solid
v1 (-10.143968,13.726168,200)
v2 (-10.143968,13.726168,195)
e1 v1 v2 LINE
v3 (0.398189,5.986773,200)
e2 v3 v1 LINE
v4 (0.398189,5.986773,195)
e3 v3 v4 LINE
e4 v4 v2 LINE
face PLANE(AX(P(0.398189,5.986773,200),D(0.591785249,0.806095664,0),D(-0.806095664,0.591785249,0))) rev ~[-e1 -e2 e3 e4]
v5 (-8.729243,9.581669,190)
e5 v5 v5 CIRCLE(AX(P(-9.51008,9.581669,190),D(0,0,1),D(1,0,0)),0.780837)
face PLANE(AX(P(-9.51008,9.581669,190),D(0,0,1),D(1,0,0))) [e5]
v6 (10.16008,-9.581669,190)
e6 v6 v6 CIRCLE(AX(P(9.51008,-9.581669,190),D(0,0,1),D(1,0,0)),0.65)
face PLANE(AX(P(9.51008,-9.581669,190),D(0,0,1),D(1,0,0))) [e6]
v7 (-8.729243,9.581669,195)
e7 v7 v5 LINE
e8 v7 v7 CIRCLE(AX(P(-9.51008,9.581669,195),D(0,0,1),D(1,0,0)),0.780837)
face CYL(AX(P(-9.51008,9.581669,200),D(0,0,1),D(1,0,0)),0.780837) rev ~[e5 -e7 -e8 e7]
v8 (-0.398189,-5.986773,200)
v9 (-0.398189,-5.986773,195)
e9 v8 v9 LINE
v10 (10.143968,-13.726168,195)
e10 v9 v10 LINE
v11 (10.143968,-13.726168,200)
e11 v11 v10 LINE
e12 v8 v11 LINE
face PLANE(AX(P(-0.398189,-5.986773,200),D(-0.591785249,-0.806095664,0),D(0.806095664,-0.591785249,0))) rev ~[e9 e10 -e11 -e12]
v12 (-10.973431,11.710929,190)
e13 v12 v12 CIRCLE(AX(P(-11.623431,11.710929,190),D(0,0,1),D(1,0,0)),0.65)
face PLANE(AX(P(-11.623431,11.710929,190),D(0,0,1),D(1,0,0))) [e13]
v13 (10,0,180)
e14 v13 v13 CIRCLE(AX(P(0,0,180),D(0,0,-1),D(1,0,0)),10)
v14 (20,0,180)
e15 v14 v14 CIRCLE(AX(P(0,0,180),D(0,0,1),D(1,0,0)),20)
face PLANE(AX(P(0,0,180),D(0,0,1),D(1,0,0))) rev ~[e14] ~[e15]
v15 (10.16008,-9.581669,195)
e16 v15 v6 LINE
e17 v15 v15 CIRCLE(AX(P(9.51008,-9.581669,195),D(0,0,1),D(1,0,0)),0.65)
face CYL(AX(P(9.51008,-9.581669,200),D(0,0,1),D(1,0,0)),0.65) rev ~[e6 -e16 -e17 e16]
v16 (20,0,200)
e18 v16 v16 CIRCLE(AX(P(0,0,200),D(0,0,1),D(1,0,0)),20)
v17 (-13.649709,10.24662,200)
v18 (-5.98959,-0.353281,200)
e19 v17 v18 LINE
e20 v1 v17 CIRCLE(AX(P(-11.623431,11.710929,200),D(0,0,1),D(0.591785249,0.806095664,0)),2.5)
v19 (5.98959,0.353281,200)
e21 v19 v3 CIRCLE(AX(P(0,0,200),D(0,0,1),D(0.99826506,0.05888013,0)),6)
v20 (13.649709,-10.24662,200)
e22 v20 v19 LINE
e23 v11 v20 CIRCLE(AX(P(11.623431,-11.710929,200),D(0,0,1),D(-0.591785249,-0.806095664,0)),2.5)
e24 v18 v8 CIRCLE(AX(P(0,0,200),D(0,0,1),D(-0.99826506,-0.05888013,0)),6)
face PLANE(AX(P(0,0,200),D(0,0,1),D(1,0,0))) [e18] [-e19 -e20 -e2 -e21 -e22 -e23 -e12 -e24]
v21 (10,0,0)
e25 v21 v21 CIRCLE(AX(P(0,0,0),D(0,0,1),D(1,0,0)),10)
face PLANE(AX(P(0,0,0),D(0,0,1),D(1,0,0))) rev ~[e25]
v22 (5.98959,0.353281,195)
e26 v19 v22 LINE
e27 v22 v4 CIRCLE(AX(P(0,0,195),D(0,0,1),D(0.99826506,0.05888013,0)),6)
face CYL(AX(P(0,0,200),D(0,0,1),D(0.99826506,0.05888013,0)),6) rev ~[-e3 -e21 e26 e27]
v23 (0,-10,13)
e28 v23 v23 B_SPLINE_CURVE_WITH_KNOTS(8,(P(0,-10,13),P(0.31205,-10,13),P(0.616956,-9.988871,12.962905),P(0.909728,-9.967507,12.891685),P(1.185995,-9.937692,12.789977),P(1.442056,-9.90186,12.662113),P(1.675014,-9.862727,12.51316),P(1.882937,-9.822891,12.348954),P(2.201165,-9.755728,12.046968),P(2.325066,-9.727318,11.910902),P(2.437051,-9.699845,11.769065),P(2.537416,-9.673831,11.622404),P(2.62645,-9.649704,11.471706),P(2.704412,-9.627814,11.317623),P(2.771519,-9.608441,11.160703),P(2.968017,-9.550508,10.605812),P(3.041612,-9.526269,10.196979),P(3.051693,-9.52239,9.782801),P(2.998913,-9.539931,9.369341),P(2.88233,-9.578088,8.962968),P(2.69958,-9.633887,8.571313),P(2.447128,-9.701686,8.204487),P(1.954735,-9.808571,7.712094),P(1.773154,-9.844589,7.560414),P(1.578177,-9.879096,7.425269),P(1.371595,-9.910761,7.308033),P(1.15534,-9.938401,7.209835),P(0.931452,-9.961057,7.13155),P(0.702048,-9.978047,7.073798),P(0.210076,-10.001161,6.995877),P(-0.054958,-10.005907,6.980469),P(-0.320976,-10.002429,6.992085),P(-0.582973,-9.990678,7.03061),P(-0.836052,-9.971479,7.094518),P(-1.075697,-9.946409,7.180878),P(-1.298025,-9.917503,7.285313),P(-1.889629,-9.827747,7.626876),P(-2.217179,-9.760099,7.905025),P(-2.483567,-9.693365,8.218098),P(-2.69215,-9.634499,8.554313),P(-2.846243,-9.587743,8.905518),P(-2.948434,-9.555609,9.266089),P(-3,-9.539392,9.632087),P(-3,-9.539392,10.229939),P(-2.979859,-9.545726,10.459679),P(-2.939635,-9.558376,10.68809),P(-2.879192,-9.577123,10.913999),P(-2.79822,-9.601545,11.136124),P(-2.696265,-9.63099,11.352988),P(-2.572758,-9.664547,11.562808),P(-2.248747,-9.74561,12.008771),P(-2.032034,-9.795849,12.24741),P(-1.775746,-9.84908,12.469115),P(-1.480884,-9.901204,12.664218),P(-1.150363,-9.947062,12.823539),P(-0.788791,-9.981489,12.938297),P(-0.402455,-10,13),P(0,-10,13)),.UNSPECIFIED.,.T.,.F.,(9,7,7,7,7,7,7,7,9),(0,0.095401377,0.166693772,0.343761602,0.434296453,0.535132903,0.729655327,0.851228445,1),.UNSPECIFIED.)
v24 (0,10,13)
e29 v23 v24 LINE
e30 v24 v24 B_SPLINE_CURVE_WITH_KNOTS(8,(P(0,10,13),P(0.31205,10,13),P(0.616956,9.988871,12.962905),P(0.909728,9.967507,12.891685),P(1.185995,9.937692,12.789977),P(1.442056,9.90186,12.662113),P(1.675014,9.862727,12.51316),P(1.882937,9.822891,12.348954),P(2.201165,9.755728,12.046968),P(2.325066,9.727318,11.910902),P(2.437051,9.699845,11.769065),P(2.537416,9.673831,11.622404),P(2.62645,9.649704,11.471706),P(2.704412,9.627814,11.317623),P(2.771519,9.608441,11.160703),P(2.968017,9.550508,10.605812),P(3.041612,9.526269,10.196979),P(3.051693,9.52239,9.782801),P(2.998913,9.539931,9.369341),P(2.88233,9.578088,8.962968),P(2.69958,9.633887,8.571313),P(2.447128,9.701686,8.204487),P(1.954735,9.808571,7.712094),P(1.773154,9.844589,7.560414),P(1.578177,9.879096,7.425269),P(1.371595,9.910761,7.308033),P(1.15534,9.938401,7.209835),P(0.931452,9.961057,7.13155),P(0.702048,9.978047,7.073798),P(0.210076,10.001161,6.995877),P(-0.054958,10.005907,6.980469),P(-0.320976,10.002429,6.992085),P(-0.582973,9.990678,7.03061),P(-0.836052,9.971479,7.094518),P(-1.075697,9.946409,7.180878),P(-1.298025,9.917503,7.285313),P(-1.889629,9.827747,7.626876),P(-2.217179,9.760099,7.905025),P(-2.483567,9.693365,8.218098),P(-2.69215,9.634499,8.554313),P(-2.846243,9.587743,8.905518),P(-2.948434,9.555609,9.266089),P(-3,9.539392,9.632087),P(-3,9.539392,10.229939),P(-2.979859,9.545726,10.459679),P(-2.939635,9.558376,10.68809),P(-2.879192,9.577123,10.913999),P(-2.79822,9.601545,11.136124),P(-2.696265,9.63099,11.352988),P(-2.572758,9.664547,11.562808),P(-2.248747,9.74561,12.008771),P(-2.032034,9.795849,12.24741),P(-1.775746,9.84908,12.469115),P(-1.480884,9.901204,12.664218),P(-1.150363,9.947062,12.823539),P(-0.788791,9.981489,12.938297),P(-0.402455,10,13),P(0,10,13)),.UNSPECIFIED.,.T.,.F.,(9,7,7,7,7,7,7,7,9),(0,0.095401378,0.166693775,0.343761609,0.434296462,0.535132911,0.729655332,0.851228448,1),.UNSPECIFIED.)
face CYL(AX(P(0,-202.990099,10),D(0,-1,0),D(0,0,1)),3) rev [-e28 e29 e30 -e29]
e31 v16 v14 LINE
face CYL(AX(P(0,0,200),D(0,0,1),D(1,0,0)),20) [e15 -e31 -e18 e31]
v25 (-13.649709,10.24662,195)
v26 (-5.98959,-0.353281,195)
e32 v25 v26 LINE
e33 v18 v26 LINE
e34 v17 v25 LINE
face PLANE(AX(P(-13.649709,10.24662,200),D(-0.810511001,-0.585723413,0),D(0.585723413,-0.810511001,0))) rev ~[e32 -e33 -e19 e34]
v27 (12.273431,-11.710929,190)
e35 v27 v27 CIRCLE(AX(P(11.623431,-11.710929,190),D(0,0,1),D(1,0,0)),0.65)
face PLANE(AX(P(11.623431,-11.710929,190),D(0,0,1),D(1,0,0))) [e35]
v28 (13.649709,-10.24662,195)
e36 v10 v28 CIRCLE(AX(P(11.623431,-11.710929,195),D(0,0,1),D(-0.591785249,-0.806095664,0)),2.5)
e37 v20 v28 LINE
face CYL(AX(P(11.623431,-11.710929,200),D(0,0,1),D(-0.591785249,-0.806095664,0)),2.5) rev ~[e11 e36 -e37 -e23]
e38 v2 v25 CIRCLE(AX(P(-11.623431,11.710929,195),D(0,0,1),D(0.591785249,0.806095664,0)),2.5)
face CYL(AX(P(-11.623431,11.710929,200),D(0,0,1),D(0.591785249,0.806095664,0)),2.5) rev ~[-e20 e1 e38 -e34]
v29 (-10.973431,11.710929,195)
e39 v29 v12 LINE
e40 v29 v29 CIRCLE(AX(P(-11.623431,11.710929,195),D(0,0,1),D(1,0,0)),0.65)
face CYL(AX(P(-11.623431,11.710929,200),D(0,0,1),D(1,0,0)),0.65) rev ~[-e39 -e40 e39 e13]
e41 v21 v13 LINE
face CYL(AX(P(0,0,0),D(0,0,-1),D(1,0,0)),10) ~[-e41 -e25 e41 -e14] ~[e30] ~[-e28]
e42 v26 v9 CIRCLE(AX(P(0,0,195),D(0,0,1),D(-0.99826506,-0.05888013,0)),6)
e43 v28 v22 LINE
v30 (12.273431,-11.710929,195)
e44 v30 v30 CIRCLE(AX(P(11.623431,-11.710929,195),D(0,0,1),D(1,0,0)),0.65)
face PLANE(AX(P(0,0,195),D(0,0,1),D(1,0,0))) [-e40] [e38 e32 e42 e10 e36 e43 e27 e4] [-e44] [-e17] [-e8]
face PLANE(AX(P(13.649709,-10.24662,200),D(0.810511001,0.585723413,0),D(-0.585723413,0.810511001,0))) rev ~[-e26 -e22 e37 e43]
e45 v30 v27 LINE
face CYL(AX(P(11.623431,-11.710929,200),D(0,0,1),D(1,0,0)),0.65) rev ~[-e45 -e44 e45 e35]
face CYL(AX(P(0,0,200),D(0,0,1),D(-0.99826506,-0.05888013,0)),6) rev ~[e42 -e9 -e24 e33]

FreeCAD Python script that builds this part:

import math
import FreeCAD as App
import Part
import Sketcher

V = App.Vector
Q = App.Units.Quantity

doc = App.newDocument("Part")
body = doc.addObject("PartDesign::Body", "Body")

# Sketch on XY plane
sketch1 = body.newObject("Sketcher::SketchObject", "Sketch")
sketch1.AttachmentSupport = (doc.getObject("XY_Plane"), [""])
sketch1.MapMode = "FlatFace"
sketch1.addGeometry(Part.Circle(V(0, 0, 0), V(0, 0, 1), 10), False)
sketch1.addConstraint([
    Sketcher.Constraint("Coincident", 0, 3, -1, 1),
    Sketcher.Constraint("Diameter", 0, Q("20 mm")),
])
pad1 = body.newObject("PartDesign::Pad", "Pad")
pad1.Profile = sketch1
pad1.Length = 200

# Sketch on XY plane
sketch2 = body.newObject("Sketcher::SketchObject", "Sketch001")
sketch2.AttachmentSupport = (doc.getObject("XY_Plane"), [""])
sketch2.MapMode = "FlatFace"
sketch2.AttachmentOffset = App.Placement(V(0, 0, 200), App.Rotation())
sketch2.addGeometry(Part.Circle(V(0, 0, 0), V(0, 0, 1), 20), False)
sketch2.addConstraint([
    Sketcher.Constraint("Coincident", 0, 3, -1, 1),
    Sketcher.Constraint("Diameter", 0, Q("40 mm")),
])
pad2 = body.newObject("PartDesign::Pad", "Pad001")
pad2.Profile = sketch2
pad2.Length = 20
pad2.Reversed = True

# Sketch on XY plane
sketch3 = body.newObject("Sketcher::SketchObject", "Sketch002")
sketch3.AttachmentSupport = (doc.getObject("XY_Plane"), [""])
sketch3.MapMode = "FlatFace"
sketch3.AttachmentOffset = App.Placement(V(0, 0, 200), App.Rotation())
sketch3.addGeometry([
    Part.LineSegment(V(0.4, 6, 0), V(-10.1, 13.7, 0)),  # 0
    Part.ArcOfCircle(Part.Circle(V(-11.6, 11.7, 0), V(0, 0, 1), 2.5), math.radians(54), math.radians(216)),  # 1
    Part.LineSegment(V(-13.6, 10.2, 0), V(-6, -0.4, 0)),  # 2
    Part.ArcOfCircle(Part.Circle(V(0, 0, 0), V(0, 0, 1), 6), math.radians(-177), math.radians(-94)),  # 3
    Part.LineSegment(V(-0.4, -6, 0), V(10.1, -13.7, 0)),  # 4
    Part.ArcOfCircle(Part.Circle(V(11.6, -11.7, 0), V(0, 0, 1), 2.5), math.radians(-126), math.radians(36)),  # 5
    Part.LineSegment(V(13.6, -10.2, 0), V(6, 0.4, 0)),  # 6
    Part.ArcOfCircle(Part.Circle(V(0, 0, 0), V(0, 0, 1), 6), math.radians(3), math.radians(86)),  # 7
    Part.Circle(V(11.6, -11.7, 0), V(0, 0, 1), 0.7),  # 8
    Part.Circle(V(9.5, -9.6, 0), V(0, 0, 1), 0.7),  # 9
    Part.Circle(V(-9.5, 9.6, 0), V(0, 0, 1), 0.7),  # 10
    Part.Circle(V(-11.6, 11.7, 0), V(0, 0, 1), 0.7),  # 11
], False)
sketch3.addConstraint([
    Sketcher.Constraint("Tangent", 0, 2, 1, 1),
    Sketcher.Constraint("Tangent", 1, 2, 2, 1),
    Sketcher.Constraint("Coincident", 2, 2, 3, 1),
    Sketcher.Constraint("Coincident", 3, 2, 4, 1),
    Sketcher.Constraint("Tangent", 4, 2, 5, 1),
    Sketcher.Constraint("Tangent", 5, 2, 6, 1),
    Sketcher.Constraint("Coincident", 6, 2, 7, 1),
    Sketcher.Constraint("Coincident", 7, 2, 0, 1),
    Sketcher.Constraint("Coincident", 3, 3, -1, 1),
    Sketcher.Constraint("Coincident", 7, 3, -1, 1),
    Sketcher.Constraint("Coincident", 8, 3, 5, 3),
    Sketcher.Constraint("Coincident", 11, 3, 1, 3),
    Sketcher.Constraint("Equal", 1, 5),
    Sketcher.Constraint("Equal", 3, 7),
    Sketcher.Constraint("Equal", 8, 9),
    Sketcher.Constraint("Equal", 9, 10),
    Sketcher.Constraint("Equal", 10, 11),
    Sketcher.Constraint("Symmetric", 1, 3, 5, 3, -1, 1),
    Sketcher.Constraint("Symmetric", 9, 3, 10, 3, -1, 1),
    Sketcher.Constraint("Parallel", 0, 4),
    Sketcher.Constraint("Parallel", 2, 6),
    Sketcher.Constraint("Equal", 0, 2),
    Sketcher.Constraint("Radius", 3, Q("6 mm")),
    Sketcher.Constraint("Diameter", 8, Q("1.3 mm")),
    Sketcher.Constraint("Radius", 1, Q("2.5 mm")),
    Sketcher.Constraint("DistanceY", 10, 3, 0, 2, Q("4.144499 mm")),
    Sketcher.Constraint("DistanceY", 2, 2, 1, 2, Q("10.599901 mm")),
    Sketcher.Constraint("DistanceX", 2, 2, 3, 2, Q("5.591401 mm")),
    Sketcher.Constraint("DistanceX", 1, 3, -1, 1, Q("11.623431 mm")),
    Sketcher.Constraint("DistanceX", -1, 1, 9, 3, Q("9.51008 mm")),
])
pocket1 = body.newObject("PartDesign::Pocket", "Pocket")
pocket1.Profile = sketch3
pocket1.Length = 5

# Sketch on XY plane
sketch4 = body.newObject("Sketcher::SketchObject", "Sketch003")
sketch4.AttachmentSupport = (doc.getObject("XY_Plane"), [""])
sketch4.MapMode = "FlatFace"
sketch4.AttachmentOffset = App.Placement(V(0, 0, 200), App.Rotation())
sketch4.addGeometry([
    Part.Circle(V(-9.5, 9.6, 0), V(0, 0, 1), 0.8),
    Part.Circle(V(-11.6, 11.7, 0), V(0, 0, 1), 0.7),
    Part.Circle(V(9.5, -9.6, 0), V(0, 0, 1), 0.7),
    Part.Circle(V(11.6, -11.7, 0), V(0, 0, 1), 0.7),
], False)
sketch4.addConstraint([
    Sketcher.Constraint("Equal", 1, 2),
    Sketcher.Constraint("Equal", 2, 3),
    Sketcher.Constraint("Symmetric", 0, 3, 2, 3, -1, 1),
    Sketcher.Constraint("Symmetric", 1, 3, 3, 3, -1, 1),
    Sketcher.Constraint("Diameter", 1, Q("1.3 mm")),
    Sketcher.Constraint("Diameter", 0, Q("1.561673 mm")),
    Sketcher.Constraint("DistanceX", 0, 3, -1, 1, Q("9.51008 mm")),
    Sketcher.Constraint("DistanceY", -1, 1, 0, 3, Q("9.581669 mm")),
    Sketcher.Constraint("DistanceX", 1, 3, -1, 1, Q("11.623431 mm")),
    Sketcher.Constraint("DistanceY", -1, 1, 1, 3, Q("11.710929 mm")),
])
pocket2 = body.newObject("PartDesign::Pocket", "Pocket001")
pocket2.Profile = sketch4
pocket2.Length = 10

# Sketch on XZ plane
sketch5 = body.newObject("Sketcher::SketchObject", "Sketch004")
sketch5.AttachmentSupport = (doc.getObject("XZ_Plane"), [""])
sketch5.MapMode = "FlatFace"
sketch5.addGeometry(Part.Circle(V(0, 10, 0), V(0, 0, 1), 3), False)
sketch5.addConstraint([
    Sketcher.Constraint("PointOnObject", 0, 3, -2),
    Sketcher.Constraint("Diameter", 0, Q("6 mm")),
    Sketcher.Constraint("DistanceY", -1, 1, 0, 3, Q("10 mm")),
])
pocket3 = body.newObject("PartDesign::Pocket", "Pocket002")
pocket3.Profile = sketch5
pocket3.Type = "ThroughAll"
pocket3.Midplane = True

doc.recompute()
